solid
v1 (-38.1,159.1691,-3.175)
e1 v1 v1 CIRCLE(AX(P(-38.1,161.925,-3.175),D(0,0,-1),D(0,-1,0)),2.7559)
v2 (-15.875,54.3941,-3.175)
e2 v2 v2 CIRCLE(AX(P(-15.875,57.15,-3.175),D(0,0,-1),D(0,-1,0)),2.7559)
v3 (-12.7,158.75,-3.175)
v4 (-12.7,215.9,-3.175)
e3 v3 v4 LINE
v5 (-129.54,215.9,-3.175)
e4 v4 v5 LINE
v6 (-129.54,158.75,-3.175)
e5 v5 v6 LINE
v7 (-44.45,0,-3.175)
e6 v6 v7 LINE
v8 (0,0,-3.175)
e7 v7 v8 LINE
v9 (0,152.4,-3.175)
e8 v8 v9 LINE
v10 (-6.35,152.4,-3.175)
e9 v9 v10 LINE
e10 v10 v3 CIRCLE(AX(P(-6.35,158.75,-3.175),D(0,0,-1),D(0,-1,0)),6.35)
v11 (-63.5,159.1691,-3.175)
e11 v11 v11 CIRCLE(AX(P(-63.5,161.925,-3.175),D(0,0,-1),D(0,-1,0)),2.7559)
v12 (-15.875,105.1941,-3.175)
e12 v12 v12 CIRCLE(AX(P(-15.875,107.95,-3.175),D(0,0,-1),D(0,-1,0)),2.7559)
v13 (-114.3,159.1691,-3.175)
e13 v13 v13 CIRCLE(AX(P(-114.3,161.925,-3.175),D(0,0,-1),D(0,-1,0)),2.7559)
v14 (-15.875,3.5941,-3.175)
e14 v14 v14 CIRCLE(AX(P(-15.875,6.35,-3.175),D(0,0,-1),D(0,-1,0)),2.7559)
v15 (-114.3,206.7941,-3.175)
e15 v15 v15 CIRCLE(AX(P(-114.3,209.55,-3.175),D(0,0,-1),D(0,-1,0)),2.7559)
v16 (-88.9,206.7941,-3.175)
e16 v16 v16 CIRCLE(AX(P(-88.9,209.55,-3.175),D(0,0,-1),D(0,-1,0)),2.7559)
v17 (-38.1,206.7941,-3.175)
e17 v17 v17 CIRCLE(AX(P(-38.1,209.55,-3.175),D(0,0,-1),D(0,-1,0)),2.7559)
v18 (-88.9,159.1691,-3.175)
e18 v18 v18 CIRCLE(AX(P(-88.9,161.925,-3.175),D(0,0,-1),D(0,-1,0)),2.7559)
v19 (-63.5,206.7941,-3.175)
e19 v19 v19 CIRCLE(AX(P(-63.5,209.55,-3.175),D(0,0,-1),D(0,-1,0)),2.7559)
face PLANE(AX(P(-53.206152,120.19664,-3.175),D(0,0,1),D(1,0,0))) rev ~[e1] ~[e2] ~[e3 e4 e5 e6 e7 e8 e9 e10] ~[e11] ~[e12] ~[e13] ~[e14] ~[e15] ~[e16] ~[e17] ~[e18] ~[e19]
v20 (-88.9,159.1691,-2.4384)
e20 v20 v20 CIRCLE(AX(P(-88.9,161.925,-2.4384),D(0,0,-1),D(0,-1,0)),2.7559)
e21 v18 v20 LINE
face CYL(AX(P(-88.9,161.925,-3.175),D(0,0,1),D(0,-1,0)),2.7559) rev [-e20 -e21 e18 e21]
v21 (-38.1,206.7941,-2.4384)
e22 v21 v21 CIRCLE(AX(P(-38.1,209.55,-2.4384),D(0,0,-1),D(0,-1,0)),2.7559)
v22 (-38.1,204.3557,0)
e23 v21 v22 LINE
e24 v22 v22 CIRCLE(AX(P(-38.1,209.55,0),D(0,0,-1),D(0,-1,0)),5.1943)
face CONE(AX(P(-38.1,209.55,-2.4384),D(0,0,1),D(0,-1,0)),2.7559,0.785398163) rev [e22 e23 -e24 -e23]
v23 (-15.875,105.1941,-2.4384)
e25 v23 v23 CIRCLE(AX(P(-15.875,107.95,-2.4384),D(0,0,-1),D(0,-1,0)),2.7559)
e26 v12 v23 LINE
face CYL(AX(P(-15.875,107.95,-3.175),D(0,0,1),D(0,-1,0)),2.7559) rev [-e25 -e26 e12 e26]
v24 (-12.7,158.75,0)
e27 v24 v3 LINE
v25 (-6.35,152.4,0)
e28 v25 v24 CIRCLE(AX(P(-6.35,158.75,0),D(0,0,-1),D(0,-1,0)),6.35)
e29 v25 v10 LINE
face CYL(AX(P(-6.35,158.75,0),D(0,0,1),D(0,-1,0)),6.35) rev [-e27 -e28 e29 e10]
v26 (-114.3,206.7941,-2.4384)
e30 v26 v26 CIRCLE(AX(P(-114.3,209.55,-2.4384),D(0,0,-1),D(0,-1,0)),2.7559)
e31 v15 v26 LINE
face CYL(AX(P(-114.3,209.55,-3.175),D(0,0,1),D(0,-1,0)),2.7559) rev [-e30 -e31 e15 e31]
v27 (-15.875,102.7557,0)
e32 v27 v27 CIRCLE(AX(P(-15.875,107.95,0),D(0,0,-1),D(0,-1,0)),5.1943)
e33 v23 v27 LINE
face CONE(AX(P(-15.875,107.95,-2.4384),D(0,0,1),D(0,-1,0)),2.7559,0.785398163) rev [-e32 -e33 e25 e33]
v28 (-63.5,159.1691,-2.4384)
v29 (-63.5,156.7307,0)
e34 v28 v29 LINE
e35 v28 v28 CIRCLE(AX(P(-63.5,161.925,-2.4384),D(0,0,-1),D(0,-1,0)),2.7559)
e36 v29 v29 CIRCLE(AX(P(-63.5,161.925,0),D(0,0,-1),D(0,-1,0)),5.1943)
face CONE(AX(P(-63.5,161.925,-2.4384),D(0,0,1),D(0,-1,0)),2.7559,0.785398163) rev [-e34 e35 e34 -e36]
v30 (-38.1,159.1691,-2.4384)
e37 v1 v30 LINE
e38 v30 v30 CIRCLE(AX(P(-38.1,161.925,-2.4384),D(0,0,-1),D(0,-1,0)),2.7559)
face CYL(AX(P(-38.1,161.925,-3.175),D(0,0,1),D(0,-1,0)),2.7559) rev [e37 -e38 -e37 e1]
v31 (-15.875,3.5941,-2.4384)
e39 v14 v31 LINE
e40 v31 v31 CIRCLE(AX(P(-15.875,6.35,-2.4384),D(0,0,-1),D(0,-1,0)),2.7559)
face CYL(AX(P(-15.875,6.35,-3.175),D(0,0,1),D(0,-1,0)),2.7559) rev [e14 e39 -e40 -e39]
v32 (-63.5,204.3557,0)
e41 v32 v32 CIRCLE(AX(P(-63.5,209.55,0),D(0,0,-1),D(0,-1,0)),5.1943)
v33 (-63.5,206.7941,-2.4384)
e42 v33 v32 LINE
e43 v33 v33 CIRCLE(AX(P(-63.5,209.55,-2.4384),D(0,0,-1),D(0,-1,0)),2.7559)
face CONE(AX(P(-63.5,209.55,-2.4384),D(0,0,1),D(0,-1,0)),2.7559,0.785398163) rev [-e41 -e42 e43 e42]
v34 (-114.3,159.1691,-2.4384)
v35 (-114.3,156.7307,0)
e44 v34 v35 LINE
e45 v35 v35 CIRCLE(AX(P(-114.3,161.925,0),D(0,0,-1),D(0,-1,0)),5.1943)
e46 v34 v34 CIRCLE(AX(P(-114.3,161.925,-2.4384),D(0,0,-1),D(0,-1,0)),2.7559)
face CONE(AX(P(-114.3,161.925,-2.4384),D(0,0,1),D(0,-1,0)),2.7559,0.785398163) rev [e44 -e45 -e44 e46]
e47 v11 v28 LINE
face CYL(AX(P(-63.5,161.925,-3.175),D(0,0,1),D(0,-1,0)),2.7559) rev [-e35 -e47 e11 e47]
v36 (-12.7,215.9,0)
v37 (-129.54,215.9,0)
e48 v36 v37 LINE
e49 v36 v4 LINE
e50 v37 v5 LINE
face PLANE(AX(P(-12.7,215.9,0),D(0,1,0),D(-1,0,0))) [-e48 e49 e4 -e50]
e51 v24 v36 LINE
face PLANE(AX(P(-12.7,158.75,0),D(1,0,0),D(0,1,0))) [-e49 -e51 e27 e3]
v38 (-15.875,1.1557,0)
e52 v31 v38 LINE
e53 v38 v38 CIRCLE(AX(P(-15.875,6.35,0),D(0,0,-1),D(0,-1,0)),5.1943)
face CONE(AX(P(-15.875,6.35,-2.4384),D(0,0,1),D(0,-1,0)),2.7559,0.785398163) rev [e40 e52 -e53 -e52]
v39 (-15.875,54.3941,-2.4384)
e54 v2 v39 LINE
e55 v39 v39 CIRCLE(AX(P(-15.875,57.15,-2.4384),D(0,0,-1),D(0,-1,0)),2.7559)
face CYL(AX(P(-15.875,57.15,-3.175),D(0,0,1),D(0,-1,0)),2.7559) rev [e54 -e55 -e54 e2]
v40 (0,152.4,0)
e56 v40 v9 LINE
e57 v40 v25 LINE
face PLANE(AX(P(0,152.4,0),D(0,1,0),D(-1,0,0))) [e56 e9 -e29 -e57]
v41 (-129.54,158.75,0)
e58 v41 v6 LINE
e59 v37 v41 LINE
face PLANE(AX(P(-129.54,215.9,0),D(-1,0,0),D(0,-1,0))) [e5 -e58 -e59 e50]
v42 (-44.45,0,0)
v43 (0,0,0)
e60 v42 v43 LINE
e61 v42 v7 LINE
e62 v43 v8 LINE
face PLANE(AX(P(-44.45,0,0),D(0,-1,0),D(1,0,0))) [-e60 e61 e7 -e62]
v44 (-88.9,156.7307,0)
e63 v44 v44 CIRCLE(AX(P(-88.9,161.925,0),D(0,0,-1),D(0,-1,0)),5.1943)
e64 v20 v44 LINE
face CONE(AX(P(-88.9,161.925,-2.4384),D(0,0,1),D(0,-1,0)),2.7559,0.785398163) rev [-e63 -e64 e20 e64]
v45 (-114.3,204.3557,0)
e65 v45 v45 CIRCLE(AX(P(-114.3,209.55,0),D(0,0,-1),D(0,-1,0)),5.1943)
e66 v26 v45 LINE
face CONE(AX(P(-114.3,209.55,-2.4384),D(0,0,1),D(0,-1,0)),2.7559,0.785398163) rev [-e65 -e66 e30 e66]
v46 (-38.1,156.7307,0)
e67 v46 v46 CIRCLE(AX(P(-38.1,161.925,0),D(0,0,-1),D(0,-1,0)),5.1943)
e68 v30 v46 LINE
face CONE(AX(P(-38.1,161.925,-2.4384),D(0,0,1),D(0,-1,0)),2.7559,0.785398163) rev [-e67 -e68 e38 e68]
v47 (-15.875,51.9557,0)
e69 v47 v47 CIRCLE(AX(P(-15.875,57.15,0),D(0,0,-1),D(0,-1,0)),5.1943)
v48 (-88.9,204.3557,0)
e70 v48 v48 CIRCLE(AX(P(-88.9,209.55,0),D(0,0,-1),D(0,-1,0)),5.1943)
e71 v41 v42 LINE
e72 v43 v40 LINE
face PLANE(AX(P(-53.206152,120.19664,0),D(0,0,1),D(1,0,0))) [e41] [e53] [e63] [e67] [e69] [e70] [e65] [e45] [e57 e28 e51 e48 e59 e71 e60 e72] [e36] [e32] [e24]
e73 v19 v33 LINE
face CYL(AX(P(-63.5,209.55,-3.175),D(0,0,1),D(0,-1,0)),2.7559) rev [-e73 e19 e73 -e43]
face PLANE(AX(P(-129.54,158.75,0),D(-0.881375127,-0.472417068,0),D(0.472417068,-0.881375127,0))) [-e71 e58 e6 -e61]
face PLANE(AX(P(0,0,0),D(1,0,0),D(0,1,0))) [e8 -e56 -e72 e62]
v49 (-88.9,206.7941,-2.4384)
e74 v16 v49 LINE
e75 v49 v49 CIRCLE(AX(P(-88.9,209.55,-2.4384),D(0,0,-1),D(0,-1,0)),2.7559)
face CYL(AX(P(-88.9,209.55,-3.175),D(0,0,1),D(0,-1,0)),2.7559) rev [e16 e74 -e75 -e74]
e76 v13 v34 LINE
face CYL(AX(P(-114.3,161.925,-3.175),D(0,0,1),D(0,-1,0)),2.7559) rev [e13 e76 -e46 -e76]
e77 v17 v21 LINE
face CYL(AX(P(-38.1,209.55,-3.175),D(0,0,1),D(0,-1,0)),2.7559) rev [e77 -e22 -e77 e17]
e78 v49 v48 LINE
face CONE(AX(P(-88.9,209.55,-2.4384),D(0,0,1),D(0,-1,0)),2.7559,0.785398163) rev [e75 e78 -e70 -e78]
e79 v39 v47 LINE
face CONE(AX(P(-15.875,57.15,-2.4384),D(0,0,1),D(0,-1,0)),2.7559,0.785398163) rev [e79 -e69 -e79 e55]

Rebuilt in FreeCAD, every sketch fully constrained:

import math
import FreeCAD as App
import Part
import Sketcher

V = App.Vector
Q = App.Units.Quantity

doc = App.newDocument("Part")
body = doc.addObject("PartDesign::Body", "Body")

sketch1 = body.newObject("Sketcher::SketchObject", "Sketch")
sketch1.AttachmentSupport = (doc.getObject("XY_Plane"), [""])
sketch1.MapMode = "FlatFace"
sketch1.addGeometry([
    Part.LineSegment(V(0, 0, 0), V(0, 152.4, 0)),
    Part.LineSegment(V(0, 152.4, 0), V(-6.35, 152.4, 0)),
    Part.ArcOfCircle(Part.Circle(V(-6.35, 158.75, 0), V(0, 0, 1), 6.35), math.radians(180), math.radians(270)),
    Part.LineSegment(V(-12.7, 158.75, 0), V(-12.7, 215.9, 0)),
    Part.LineSegment(V(-12.7, 215.9, 0), V(-129.54, 215.9, 0)),
    Part.LineSegment(V(-129.54, 215.9, 0), V(-129.54, 158.75, 0)),
    Part.LineSegment(V(-129.54, 158.75, 0), V(-44.45, 0, 0)),
    Part.LineSegment(V(-44.45, 0, 0), V(0, 0, 0)),
], False)
sketch1.addConstraint([
    Sketcher.Constraint("Coincident", 0, 2, 1, 1),
    Sketcher.Constraint("Tangent", 1, 2, 2, 2),
    Sketcher.Constraint("Tangent", 2, 1, 3, 1),
    Sketcher.Constraint("Coincident", 3, 2, 4, 1),
    Sketcher.Constraint("Coincident", 4, 2, 5, 1),
    Sketcher.Constraint("Coincident", 5, 2, 6, 1),
    Sketcher.Constraint("Coincident", 6, 2, 7, 1),
    Sketcher.Constraint("Coincident", 7, 2, 0, 1),
    Sketcher.Constraint("Vertical", 0),
    Sketcher.Constraint("Horizontal", 1),
    Sketcher.Constraint("Vertical", 3),
    Sketcher.Constraint("Horizontal", 4),
    Sketcher.Constraint("Vertical", 5),
    Sketcher.Constraint("Horizontal", 7),
    Sketcher.Constraint("Coincident", 7, 2, -1, 1),
    Sketcher.Constraint("Horizontal", 2, 1, 5, 2),
    Sketcher.Constraint("DistanceY", 0, 1, 0, 2, Q("6 in")),
    Sketcher.Constraint("Radius", 2, Q("0.25 in")),
    Sketcher.Constraint("DistanceX", 4, 2, 4, 1, Q("4.6 in")),
    Sketcher.Constraint("DistanceX", 1, 2, 1, 1, Q("0.25 in")),
    Sketcher.Constraint("DistanceX", 7, 1, 7, 2, Q("1.75 in")),
    Sketcher.Constraint("DistanceY", 3, 1, 3, 2, Q("2.25 in")),
])
pad1 = body.newObject("PartDesign::Pad", "Pad")
pad1.Profile = sketch1
pad1.Length = Q("0.125 in")
pad1.Reversed = True

sketch2 = body.newObject("Sketcher::SketchObject", "Sketch001")
sketch2.AttachmentSupport = (doc.getObject("YZ_Plane"), [""])
sketch2.MapMode = "FlatFace"
sketch2.AttachmentOffset = App.Placement(V(0, 0, -4.5 * 25.4), App.Rotation())
sketch2.addGeometry([
    Part.LineSegment(V(209.55, -3.175, 0), V(209.55, 0, 0)),
    Part.LineSegment(V(209.55, 0, 0), V(204.3557, 0, 0)),
    Part.LineSegment(V(204.3557, 0, 0), V(206.7941, -2.4384, 0)),
    Part.LineSegment(V(206.7941, -2.4384, 0), V(206.7941, -3.175, 0)),
    Part.LineSegment(V(206.7941, -3.175, 0), V(209.55, -3.175, 0)),
], False)
sketch2.addGeometry(Part.LineSegment(V(209.55, 0, 0), V(209.55, -3.175, 0)), True)
sketch2.addConstraint([
    Sketcher.Constraint("Coincident", 0, 2, 1, 1),
    Sketcher.Constraint("Coincident", 1, 2, 2, 1),
    Sketcher.Constraint("Coincident", 2, 2, 3, 1),
    Sketcher.Constraint("Coincident", 3, 2, 4, 1),
    Sketcher.Constraint("Coincident", 4, 2, 0, 1),
    Sketcher.Constraint("Vertical", 0),
    Sketcher.Constraint("Horizontal", 1),
    Sketcher.Constraint("Vertical", 3),
    Sketcher.Constraint("Horizontal", 4),
    Sketcher.Constraint("Vertical", 5),
    Sketcher.Constraint("Coincident", 5, 1, 0, 2),
    Sketcher.Constraint("PointOnObject", 0, 2, -1),
    Sketcher.Constraint("Horizontal", 3, 2, 5, 2),
    Sketcher.Constraint("Angle", 2, Q("-45 deg")),
    Sketcher.Constraint("DistanceY", 0, 1, 0, 2, Q("0.125 in")),
    Sketcher.Constraint("DistanceY", 3, 2, 3, 1, Q("0.029 in")),
    Sketcher.Constraint("DistanceX", -1, 1, 0, 2, Q("8.25 in")),
    Sketcher.Constraint("DistanceX", 1, 2, 1, 1, Q("0.2045 in")),
])
groove = body.newObject("PartDesign::Groove", "Groove")
groove.Profile = sketch2
groove.ReferenceAxis = (sketch2, ["Axis0"])
groove.Angle = 360
doc.recompute()

linearpattern = body.newObject("PartDesign::LinearPattern", "LinearPattern")
linearpattern.Originals = [groove]
linearpattern.Direction = (doc.getObject("Y_Axis"), [""])
linearpattern.Mode = "offset"
linearpattern.Offset = Q("1.875 in")
linearpattern.Occurrences = 2
linearpattern.Reversed = True
body.Tip = linearpattern
doc.recompute()

linearpattern2 = body.newObject("PartDesign::LinearPattern", "LinearPattern001")
linearpattern2.Originals = [groove]
linearpattern2.Direction = (doc.getObject("X_Axis"), [""])
linearpattern2.Mode = "offset"
linearpattern2.Offset = Q("1 in")
linearpattern2.Occurrences = 4
body.Tip = linearpattern2

sketch3 = body.newObject("Sketcher::SketchObject", "Sketch002")
sketch3.AttachmentSupport = (doc.getObject("YZ_Plane"), [""])
sketch3.MapMode = "FlatFace"
sketch3.AttachmentOffset = App.Placement(V(0, 0, -3.5 * 25.4), App.Rotation())
sketch3.addGeometry([
    Part.LineSegment(V(161.925, -3.175, 0), V(161.925, 0, 0)),
    Part.LineSegment(V(161.925, 0, 0), V(156.7307, 0, 0)),
    Part.LineSegment(V(156.7307, 0, 0), V(159.1691, -2.4384, 0)),
    Part.LineSegment(V(159.1691, -2.4384, 0), V(159.1691, -3.175, 0)),
    Part.LineSegment(V(159.1691, -3.175, 0), V(161.925, -3.175, 0)),
], False)
sketch3.addGeometry(Part.LineSegment(V(161.925, 0, 0), V(161.925, -3.175, 0)), True)
sketch3.addConstraint([
    Sketcher.Constraint("Coincident", 0, 2, 1, 1),
    Sketcher.Constraint("Coincident", 1, 2, 2, 1),
    Sketcher.Constraint("Coincident", 2, 2, 3, 1),
    Sketcher.Constraint("Coincident", 3, 2, 4, 1),
    Sketcher.Constraint("Coincident", 4, 2, 0, 1),
    Sketcher.Constraint("Vertical", 0),
    Sketcher.Constraint("Horizontal", 1),
    Sketcher.Constraint("Vertical", 3),
    Sketcher.Constraint("Horizontal", 4),
    Sketcher.Constraint("Vertical", 5),
    Sketcher.Constraint("Coincident", 5, 1, 0, 2),
    Sketcher.Constraint("PointOnObject", 0, 2, -1),
    Sketcher.Constraint("Horizontal", 3, 2, 5, 2),
    Sketcher.Constraint("Angle", 2, Q("-45 deg")),
    Sketcher.Constraint("DistanceY", 0, 1, 0, 2, Q("0.125 in")),
    Sketcher.Constraint("DistanceY", 3, 2, 3, 1, Q("0.029 in")),
    Sketcher.Constraint("DistanceX", 1, 2, 1, 1, Q("0.2045 in")),
    Sketcher.Constraint("DistanceX", -1, 1, 0, 2, Q("6.375 in")),
])
groove2 = body.newObject("PartDesign::Groove", "Groove001")
groove2.Profile = sketch3
groove2.ReferenceAxis = (sketch3, ["Axis0"])
groove2.Angle = 360

sketch4 = body.newObject("Sketcher::SketchObject", "Sketch003")
sketch4.AttachmentSupport = (doc.getObject("YZ_Plane"), [""])
sketch4.MapMode = "FlatFace"
sketch4.AttachmentOffset = App.Placement(V(0, 0, -2.5 * 25.4), App.Rotation())
sketch4.addGeometry([
    Part.LineSegment(V(161.925, -3.175, 0), V(161.925, 0, 0)),
    Part.LineSegment(V(161.925, 0, 0), V(156.7307, 0, 0)),
    Part.LineSegment(V(156.7307, 0, 0), V(159.1691, -2.4384, 0)),
    Part.LineSegment(V(159.1691, -2.4384, 0), V(159.1691, -3.175, 0)),
    Part.LineSegment(V(159.1691, -3.175, 0), V(161.925, -3.175, 0)),
], False)
sketch4.addGeometry(Part.LineSegment(V(161.925, 0, 0), V(161.925, -3.175, 0)), True)
sketch4.addConstraint([
    Sketcher.Constraint("Coincident", 0, 2, 1, 1),
    Sketcher.Constraint("Coincident", 1, 2, 2, 1),
    Sketcher.Constraint("Coincident", 2, 2, 3, 1),
    Sketcher.Constraint("Coincident", 3, 2, 4, 1),
    Sketcher.Constraint("Coincident", 4, 2, 0, 1),
    Sketcher.Constraint("Vertical", 0),
    Sketcher.Constraint("Horizontal", 1),
    Sketcher.Constraint("Vertical", 3),
    Sketcher.Constraint("Horizontal", 4),
    Sketcher.Constraint("Vertical", 5),
    Sketcher.Constraint("Coincident", 5, 1, 0, 2),
    Sketcher.Constraint("PointOnObject", 0, 2, -1),
    Sketcher.Constraint("Horizontal", 3, 2, 5, 2),
    Sketcher.Constraint("Angle", 2, Q("-45 deg")),
    Sketcher.Constraint("DistanceY", 0, 1, 0, 2, Q("0.125 in")),
    Sketcher.Constraint("DistanceY", 3, 2, 3, 1, Q("0.029 in")),
    Sketcher.Constraint("DistanceX", 1, 2, 1, 1, Q("0.2045 in")),
    Sketcher.Constraint("DistanceX", -1, 1, 0, 2, Q("6.375 in")),
])
groove3 = body.newObject("PartDesign::Groove", "Groove002")
groove3.Profile = sketch4
groove3.ReferenceAxis = (sketch4, ["Axis0"])
groove3.Angle = 360

sketch5 = body.newObject("Sketcher::SketchObject", "Sketch004")
sketch5.AttachmentSupport = (doc.getObject("YZ_Plane"), [""])
sketch5.MapMode = "FlatFace"
sketch5.AttachmentOffset = App.Placement(V(0, 0, -1.5 * 25.4), App.Rotation())
sketch5.addGeometry([
    Part.LineSegment(V(161.925, -3.175, 0), V(161.925, 0, 0)),
    Part.LineSegment(V(161.925, 0, 0), V(156.7307, 0, 0)),
    Part.LineSegment(V(156.7307, 0, 0), V(159.1691, -2.4384, 0)),
    Part.LineSegment(V(159.1691, -2.4384, 0), V(159.1691, -3.175, 0)),
    Part.LineSegment(V(159.1691, -3.175, 0), V(161.925, -3.175, 0)),
], False)
sketch5.addGeometry(Part.LineSegment(V(161.925, 0, 0), V(161.925, -3.175, 0)), True)
sketch5.addConstraint([
    Sketcher.Constraint("Coincident", 0, 2, 1, 1),
    Sketcher.Constraint("Coincident", 1, 2, 2, 1),
    Sketcher.Constraint("Coincident", 2, 2, 3, 1),
    Sketcher.Constraint("Coincident", 3, 2, 4, 1),
    Sketcher.Constraint("Coincident", 4, 2, 0, 1),
    Sketcher.Constraint("Vertical", 0),
    Sketcher.Constraint("Horizontal", 1),
    Sketcher.Constraint("Vertical", 3),
    Sketcher.Constraint("Horizontal", 4),
    Sketcher.Constraint("Vertical", 5),
    Sketcher.Constraint("Coincident", 5, 1, 0, 2),
    Sketcher.Constraint("PointOnObject", 0, 2, -1),
    Sketcher.Constraint("Horizontal", 3, 2, 5, 2),
    Sketcher.Constraint("Angle", 2, Q("-45 deg")),
    Sketcher.Constraint("DistanceY", 0, 1, 0, 2, Q("0.125 in")),
    Sketcher.Constraint("DistanceY", 3, 2, 3, 1, Q("0.029 in")),
    Sketcher.Constraint("DistanceX", 1, 2, 1, 1, Q("0.2045 in")),
    Sketcher.Constraint("DistanceX", -1, 1, 0, 2, Q("6.375 in")),
])
groove4 = body.newObject("PartDesign::Groove", "Groove003")
groove4.Profile = sketch5
groove4.ReferenceAxis = (sketch5, ["Axis0"])
groove4.Angle = 360

sketch6 = body.newObject("Sketcher::SketchObject", "Sketch005")
sketch6.AttachmentSupport = (doc.getObject("YZ_Plane"), [""])
sketch6.MapMode = "FlatFace"
sketch6.AttachmentOffset = App.Placement(V(0, 0, -0.625 * 25.4), App.Rotation())
sketch6.addGeometry([
    Part.LineSegment(V(107.95, -3.175, 0), V(107.95, 0, 0)),
    Part.LineSegment(V(107.95, 0, 0), V(102.7557, 0, 0)),
    Part.LineSegment(V(102.7557, 0, 0), V(105.1941, -2.4384, 0)),
    Part.LineSegment(V(105.1941, -2.4384, 0), V(105.1941, -3.175, 0)),
    Part.LineSegment(V(105.1941, -3.175, 0), V(107.95, -3.175, 0)),
], False)
sketch6.addGeometry(Part.LineSegment(V(107.95, 0, 0), V(107.95, -3.175, 0)), True)
sketch6.addConstraint([
    Sketcher.Constraint("Coincident", 0, 2, 1, 1),
    Sketcher.Constraint("Coincident", 1, 2, 2, 1),
    Sketcher.Constraint("Coincident", 2, 2, 3, 1),
    Sketcher.Constraint("Coincident", 3, 2, 4, 1),
    Sketcher.Constraint("Coincident", 4, 2, 0, 1),
    Sketcher.Constraint("Vertical", 0),
    Sketcher.Constraint("Horizontal", 1),
    Sketcher.Constraint("Vertical", 3),
    Sketcher.Constraint("Horizontal", 4),
    Sketcher.Constraint("Vertical", 5),
    Sketcher.Constraint("Coincident", 5, 1, 0, 2),
    Sketcher.Constraint("PointOnObject", 0, 2, -1),
    Sketcher.Constraint("Horizontal", 3, 2, 5, 2),
    Sketcher.Constraint("Angle", 2, Q("-45 deg")),
    Sketcher.Constraint("DistanceY", 0, 1, 0, 2, Q("0.125 in")),
    Sketcher.Constraint("DistanceY", 3, 2, 3, 1, Q("0.029 in")),
    Sketcher.Constraint("DistanceX", -1, 1, 0, 2, Q("4.25 in")),
    Sketcher.Constraint("DistanceX", 1, 2, 1, 1, Q("0.2045 in")),
])
groove5 = body.newObject("PartDesign::Groove", "Groove004")
groove5.Profile = sketch6
groove5.ReferenceAxis = (sketch6, ["Axis0"])
groove5.Angle = 360
doc.recompute()

linearpattern3 = body.newObject("PartDesign::LinearPattern", "LinearPattern002")
linearpattern3.Originals = [groove5]
linearpattern3.Direction = (doc.getObject("Y_Axis"), [""])
linearpattern3.Mode = "offset"
linearpattern3.Offset = Q("2 in")
linearpattern3.Occurrences = 3
linearpattern3.Reversed = True
body.Tip = linearpattern3

doc.recompute()
